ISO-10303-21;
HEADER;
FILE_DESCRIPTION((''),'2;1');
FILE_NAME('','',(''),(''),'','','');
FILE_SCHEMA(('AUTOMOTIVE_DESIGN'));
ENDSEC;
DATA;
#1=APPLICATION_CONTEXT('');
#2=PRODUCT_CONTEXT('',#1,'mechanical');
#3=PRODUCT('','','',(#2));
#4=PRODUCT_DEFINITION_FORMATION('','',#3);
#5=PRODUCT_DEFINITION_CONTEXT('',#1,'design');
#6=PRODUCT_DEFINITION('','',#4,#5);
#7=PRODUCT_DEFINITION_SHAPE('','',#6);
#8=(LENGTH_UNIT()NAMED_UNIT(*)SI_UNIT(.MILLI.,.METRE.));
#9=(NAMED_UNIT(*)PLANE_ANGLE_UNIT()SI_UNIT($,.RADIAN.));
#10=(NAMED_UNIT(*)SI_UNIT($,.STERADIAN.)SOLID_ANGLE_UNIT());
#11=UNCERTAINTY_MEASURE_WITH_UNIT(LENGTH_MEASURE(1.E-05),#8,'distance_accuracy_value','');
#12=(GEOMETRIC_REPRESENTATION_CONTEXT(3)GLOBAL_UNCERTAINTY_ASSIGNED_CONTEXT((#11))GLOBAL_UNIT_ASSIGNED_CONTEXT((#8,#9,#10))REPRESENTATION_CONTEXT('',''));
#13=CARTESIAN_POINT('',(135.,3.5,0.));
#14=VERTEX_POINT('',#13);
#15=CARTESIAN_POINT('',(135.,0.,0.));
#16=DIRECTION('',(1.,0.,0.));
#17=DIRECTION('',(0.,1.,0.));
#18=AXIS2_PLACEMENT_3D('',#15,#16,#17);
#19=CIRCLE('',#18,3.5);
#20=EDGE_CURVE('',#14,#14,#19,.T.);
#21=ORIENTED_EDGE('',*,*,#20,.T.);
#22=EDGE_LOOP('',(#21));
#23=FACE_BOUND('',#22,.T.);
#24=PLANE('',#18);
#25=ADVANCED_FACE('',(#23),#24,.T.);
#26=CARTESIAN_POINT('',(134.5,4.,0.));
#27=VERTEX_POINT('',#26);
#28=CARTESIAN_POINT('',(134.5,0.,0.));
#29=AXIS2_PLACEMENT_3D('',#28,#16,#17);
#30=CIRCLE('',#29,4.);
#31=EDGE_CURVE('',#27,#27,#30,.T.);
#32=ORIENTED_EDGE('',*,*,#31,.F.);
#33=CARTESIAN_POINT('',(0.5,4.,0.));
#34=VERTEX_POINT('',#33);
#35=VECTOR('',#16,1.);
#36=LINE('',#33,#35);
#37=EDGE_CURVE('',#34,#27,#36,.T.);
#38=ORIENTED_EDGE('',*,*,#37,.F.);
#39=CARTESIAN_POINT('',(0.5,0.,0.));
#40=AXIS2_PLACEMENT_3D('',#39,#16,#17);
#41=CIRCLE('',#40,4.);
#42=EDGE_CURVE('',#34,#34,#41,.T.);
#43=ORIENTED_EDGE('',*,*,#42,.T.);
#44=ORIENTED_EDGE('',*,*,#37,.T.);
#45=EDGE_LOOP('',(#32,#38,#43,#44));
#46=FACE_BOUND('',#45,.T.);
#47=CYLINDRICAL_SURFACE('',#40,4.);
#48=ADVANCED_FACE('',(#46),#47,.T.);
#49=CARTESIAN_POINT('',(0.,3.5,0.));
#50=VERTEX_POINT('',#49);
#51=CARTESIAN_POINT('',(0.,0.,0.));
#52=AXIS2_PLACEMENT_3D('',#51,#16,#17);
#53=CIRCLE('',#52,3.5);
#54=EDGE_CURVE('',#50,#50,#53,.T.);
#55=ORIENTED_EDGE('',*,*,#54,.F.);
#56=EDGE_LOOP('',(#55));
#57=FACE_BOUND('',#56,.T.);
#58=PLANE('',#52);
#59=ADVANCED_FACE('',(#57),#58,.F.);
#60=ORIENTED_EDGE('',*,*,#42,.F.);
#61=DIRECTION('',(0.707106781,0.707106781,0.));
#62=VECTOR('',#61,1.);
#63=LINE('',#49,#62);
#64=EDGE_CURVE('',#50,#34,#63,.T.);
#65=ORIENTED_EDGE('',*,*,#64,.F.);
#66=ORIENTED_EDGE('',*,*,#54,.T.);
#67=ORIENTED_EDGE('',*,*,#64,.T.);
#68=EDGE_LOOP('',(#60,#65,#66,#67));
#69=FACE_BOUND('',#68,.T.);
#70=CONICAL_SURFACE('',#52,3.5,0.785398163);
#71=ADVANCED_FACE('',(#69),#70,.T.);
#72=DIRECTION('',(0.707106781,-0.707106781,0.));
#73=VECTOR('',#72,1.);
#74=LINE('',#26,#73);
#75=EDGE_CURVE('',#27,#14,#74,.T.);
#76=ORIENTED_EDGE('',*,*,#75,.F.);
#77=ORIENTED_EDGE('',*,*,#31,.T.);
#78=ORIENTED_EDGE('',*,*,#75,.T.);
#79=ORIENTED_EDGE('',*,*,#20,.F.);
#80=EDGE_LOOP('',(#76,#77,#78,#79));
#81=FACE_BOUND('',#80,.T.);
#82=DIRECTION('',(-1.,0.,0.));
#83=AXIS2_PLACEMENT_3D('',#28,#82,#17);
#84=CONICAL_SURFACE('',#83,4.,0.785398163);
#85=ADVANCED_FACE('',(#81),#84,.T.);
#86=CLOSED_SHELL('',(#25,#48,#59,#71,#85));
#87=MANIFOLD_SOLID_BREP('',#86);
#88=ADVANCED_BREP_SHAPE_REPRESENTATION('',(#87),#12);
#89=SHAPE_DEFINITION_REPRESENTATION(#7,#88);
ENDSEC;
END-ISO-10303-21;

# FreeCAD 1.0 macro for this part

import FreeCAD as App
import Part
import Sketcher

V = App.Vector


def add_polygon(sketch, points):
    """Adds a closed chain of lines whose ends are joined by coincident constraints."""
    first, n = sketch.GeometryCount, len(points)
    for a, b in zip(points, points[1:] + points[:1]):
        sketch.addGeometry(Part.LineSegment(App.Vector(*a, 0), App.Vector(*b, 0)), False)
    for i in range(n):
        sketch.addConstraint(Sketcher.Constraint("Coincident", first + i, 2, first + (i + 1) % n, 1))

doc = App.newDocument("Part")
body = doc.addObject("PartDesign::Body", "Body")

# Sketch on XY plane
sketch1 = body.newObject("Sketcher::SketchObject", "Sketch")
sketch1.AttachmentSupport = (doc.getObject("XY_Plane"), [""])
sketch1.MapMode = "FlatFace"
add_polygon(sketch1, [(0, 0), (135, 0), (135, 3.5), (134.5, 4), (0.5, 4), (0, 3.5)])  # lines 0-5
sketch1.addConstraint([
    Sketcher.Constraint("Horizontal", 0),
    Sketcher.Constraint("Vertical", 1),
    Sketcher.Constraint("Horizontal", 3),
    Sketcher.Constraint("Vertical", 5),
    Sketcher.Constraint("Coincident", 5, 2, -1, 1),
    Sketcher.Constraint("Perpendicular", 2, 4),
    Sketcher.Constraint("Horizontal", 1, 2, 4, 2),
    Sketcher.Constraint("Equal", 2, 4),
    Sketcher.Constraint("DistanceX", 0, 1, 0, 2, 135.0),
    Sketcher.Constraint("DistanceX", 3, 2, 3, 1, 134.0),
    Sketcher.Constraint("DistanceY", 1, 1, 1, 2, 3.5),
])
revolution = body.newObject("PartDesign::Revolution", "Revolution")
revolution.Profile = sketch1
revolution.ReferenceAxis = (sketch1, ["H_Axis"])
revolution.Angle = 360

doc.recompute()
